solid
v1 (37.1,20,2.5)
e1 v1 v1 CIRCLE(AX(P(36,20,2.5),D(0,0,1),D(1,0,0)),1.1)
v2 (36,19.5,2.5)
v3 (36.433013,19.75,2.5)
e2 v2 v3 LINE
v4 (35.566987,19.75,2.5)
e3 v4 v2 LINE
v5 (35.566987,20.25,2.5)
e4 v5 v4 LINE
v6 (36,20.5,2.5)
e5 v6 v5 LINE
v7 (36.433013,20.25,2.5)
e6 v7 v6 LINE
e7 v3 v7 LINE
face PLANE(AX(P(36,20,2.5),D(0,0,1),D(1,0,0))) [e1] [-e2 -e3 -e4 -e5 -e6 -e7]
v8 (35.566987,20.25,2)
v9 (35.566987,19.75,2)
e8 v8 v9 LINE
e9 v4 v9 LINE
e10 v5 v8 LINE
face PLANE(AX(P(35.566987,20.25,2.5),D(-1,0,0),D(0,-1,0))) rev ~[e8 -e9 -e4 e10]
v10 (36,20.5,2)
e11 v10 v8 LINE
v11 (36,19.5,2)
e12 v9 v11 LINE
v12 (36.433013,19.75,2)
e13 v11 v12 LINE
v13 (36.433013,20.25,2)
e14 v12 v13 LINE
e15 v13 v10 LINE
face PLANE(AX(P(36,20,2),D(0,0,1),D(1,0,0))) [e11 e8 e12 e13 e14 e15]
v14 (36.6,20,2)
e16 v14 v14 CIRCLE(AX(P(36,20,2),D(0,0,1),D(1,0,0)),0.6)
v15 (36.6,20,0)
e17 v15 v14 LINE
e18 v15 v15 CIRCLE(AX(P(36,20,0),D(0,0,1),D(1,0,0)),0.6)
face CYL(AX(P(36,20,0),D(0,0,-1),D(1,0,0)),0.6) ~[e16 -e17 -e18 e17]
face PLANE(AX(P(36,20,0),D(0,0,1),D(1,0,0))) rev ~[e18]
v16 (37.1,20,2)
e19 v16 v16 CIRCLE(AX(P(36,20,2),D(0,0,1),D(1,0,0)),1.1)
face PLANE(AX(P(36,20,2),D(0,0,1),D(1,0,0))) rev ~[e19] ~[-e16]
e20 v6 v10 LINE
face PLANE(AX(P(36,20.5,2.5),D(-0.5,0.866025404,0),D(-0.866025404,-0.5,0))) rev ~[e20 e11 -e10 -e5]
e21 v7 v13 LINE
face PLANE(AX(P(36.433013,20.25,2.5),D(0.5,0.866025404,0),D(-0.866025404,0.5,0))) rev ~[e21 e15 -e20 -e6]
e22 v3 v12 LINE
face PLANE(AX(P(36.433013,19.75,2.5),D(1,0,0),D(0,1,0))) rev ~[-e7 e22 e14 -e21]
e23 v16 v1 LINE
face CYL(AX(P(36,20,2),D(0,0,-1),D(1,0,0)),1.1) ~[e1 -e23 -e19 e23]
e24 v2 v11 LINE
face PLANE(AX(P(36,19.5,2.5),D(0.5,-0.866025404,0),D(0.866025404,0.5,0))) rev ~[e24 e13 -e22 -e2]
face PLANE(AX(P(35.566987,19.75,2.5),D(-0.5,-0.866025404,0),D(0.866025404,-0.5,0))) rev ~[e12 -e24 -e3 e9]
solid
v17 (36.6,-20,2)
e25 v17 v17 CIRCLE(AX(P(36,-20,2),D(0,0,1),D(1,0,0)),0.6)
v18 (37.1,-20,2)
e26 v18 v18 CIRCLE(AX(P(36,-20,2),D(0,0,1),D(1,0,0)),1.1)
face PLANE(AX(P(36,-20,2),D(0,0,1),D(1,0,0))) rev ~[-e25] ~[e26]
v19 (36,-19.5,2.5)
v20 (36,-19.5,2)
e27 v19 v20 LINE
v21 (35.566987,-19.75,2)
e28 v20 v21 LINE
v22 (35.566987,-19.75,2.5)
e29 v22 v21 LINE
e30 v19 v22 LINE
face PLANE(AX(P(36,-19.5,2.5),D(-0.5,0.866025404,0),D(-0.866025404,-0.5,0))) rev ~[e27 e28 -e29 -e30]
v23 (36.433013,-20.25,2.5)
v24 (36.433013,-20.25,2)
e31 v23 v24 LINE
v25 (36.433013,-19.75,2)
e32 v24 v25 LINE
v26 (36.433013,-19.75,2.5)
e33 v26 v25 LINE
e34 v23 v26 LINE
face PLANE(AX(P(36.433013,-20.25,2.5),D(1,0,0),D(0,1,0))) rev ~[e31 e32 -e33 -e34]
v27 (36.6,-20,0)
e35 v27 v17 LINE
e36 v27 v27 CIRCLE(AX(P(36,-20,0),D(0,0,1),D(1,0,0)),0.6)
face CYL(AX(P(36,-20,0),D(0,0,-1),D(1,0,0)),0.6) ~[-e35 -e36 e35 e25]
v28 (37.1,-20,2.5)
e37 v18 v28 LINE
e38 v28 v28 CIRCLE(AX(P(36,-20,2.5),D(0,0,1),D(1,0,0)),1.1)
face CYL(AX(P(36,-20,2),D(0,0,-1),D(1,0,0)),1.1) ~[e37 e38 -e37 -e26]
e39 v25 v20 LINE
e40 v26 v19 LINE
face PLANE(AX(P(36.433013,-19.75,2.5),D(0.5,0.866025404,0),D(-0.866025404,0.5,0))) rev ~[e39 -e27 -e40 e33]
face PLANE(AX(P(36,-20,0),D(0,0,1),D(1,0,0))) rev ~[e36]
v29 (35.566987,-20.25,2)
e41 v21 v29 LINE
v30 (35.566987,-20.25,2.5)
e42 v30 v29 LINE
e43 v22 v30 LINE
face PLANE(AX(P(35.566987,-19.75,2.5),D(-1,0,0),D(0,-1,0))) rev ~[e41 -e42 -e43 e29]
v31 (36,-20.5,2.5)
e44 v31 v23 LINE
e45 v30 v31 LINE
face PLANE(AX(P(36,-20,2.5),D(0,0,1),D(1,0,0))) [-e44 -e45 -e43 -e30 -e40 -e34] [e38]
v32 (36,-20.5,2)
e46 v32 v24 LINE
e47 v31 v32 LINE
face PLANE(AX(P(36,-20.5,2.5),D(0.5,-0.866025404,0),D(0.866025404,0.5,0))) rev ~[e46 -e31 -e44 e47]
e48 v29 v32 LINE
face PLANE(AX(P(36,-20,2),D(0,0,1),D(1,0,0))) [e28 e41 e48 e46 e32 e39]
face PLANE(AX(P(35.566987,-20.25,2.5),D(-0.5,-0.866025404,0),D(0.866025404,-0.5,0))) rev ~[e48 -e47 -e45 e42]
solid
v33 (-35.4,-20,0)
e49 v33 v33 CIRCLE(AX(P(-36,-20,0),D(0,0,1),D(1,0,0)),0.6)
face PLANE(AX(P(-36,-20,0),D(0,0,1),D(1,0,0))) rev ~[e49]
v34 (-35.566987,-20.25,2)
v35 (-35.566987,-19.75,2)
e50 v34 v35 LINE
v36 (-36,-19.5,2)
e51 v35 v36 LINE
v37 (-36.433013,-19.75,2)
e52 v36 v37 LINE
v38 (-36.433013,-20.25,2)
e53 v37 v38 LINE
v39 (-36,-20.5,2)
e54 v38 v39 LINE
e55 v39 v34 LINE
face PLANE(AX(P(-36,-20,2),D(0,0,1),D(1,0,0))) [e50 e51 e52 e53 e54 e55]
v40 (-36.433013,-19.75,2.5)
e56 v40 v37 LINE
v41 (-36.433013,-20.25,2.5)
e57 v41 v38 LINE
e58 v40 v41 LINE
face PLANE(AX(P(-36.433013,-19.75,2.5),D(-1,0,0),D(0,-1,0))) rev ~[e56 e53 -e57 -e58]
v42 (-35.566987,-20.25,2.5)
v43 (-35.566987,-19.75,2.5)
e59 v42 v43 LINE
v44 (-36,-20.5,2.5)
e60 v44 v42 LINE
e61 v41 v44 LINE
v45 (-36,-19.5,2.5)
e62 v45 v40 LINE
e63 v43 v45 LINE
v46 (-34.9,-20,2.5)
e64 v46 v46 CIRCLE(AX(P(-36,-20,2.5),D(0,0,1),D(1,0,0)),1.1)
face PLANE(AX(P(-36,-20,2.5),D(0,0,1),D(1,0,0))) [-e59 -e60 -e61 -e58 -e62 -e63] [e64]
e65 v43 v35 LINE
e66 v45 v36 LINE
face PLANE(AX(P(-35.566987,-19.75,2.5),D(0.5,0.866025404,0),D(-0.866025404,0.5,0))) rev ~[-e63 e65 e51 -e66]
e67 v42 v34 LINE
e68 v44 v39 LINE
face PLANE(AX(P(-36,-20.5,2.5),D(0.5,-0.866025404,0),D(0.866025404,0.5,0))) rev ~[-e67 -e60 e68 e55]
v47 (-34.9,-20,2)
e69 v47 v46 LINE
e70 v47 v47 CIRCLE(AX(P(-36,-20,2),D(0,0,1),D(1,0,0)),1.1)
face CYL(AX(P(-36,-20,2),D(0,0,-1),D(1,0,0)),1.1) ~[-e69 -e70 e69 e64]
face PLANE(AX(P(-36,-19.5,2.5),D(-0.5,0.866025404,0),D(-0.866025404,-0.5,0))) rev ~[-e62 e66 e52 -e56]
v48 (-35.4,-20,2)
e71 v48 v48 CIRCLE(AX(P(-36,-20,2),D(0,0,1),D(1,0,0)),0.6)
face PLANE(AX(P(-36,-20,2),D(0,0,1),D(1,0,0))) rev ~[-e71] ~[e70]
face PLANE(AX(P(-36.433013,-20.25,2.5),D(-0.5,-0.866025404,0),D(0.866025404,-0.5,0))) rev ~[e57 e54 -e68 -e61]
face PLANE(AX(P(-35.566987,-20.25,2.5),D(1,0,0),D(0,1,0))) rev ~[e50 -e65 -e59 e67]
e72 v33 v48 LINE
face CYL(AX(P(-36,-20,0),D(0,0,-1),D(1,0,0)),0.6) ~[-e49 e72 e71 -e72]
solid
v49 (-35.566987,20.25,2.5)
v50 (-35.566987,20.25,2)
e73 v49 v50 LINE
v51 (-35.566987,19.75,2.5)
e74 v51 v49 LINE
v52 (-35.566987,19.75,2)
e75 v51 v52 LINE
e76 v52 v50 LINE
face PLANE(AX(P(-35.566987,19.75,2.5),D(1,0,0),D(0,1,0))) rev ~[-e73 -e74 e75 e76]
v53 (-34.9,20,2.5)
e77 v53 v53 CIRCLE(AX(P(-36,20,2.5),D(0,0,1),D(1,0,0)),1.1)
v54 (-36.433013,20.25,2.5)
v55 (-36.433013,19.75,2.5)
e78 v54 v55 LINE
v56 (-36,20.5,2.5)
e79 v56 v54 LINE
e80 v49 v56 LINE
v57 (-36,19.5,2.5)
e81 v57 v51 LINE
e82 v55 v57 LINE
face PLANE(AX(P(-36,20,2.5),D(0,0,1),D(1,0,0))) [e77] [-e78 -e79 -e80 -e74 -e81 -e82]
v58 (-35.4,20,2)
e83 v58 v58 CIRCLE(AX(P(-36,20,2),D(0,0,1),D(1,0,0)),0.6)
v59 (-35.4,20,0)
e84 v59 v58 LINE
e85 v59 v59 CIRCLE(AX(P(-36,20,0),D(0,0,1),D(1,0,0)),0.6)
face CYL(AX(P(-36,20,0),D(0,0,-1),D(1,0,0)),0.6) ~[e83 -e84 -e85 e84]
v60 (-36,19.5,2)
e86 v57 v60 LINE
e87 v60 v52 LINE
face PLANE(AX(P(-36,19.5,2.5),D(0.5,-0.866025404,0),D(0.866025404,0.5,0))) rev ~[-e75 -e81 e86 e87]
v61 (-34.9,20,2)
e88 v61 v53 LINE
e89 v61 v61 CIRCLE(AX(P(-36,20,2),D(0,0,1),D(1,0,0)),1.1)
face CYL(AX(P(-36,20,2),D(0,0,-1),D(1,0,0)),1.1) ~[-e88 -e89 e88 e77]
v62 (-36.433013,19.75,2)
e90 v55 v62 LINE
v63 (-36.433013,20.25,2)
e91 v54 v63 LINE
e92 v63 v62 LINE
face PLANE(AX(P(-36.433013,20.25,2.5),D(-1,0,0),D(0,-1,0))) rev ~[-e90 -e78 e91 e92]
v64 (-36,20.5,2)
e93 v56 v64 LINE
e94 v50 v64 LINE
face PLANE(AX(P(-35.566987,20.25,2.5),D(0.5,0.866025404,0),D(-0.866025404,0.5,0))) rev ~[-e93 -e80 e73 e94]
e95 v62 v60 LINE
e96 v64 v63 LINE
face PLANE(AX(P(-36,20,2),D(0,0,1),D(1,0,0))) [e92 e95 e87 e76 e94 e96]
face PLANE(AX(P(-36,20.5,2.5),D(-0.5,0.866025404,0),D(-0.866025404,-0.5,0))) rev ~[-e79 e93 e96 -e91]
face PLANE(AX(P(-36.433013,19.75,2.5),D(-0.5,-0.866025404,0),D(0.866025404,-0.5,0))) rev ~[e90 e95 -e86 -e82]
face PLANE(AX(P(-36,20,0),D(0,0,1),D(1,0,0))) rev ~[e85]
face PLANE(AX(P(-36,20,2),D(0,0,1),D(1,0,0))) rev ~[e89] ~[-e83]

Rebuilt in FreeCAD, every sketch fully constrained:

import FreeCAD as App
import Part
import Sketcher
Q = App.Units.Quantity


def add_polygon(sketch, points):
    """Adds a closed chain of lines whose ends are joined by coincident constraints."""
    first, n = sketch.GeometryCount, len(points)
    for a, b in zip(points, points[1:] + points[:1]):
        sketch.addGeometry(Part.LineSegment(App.Vector(*a, 0), App.Vector(*b, 0)), False)
    for i in range(n):
        sketch.addConstraint(Sketcher.Constraint("Coincident", first + i, 2, first + (i + 1) % n, 1))

doc = App.newDocument("Part")
body = doc.addObject("PartDesign::Body", "Body")

# Sketch on XY plane
sketch1 = doc.addObject("Sketcher::SketchObject", "Sketch")
body.addObject(sketch1)
sketch1.AttachmentSupport = (doc.XY_Plane, [""])
sketch1.MapMode = "FlatFace"
sketch1.addGeometry(Part.Circle(App.Vector(-36, 20, 0), App.Vector(0, 0, 1), 0.6), False)
sketch1.addConstraint(Sketcher.Constraint("Diameter", 0, 1.2))
sketch1.addConstraint(Sketcher.Constraint("DistanceX", 0, 3, -1, 1, 36.0))
sketch1.addConstraint(Sketcher.Constraint("DistanceY", -1, 1, 0, 3, 20.0))
pad1 = doc.addObject("PartDesign::Pad", "Pad")
body.addObject(pad1)
pad1.Profile = sketch1
pad1.Length = 2
body2 = doc.addObject("PartDesign::Body", "Body001")

# Sketch on XY plane
sketch2 = doc.addObject("Sketcher::SketchObject", "Sketch001")
body2.addObject(sketch2)
sketch2.AttachmentSupport = (doc.getObject("XY_Plane001"), [""])
sketch2.MapMode = "FlatFace"
sketch2.addGeometry(Part.Circle(App.Vector(36, 20, 0), App.Vector(0, 0, 1), 0.6), False)
sketch2.addConstraint(Sketcher.Constraint("Diameter", 0, 1.2))
sketch2.addConstraint(Sketcher.Constraint("DistanceX", -1, 1, 0, 3, 36.0))
sketch2.addConstraint(Sketcher.Constraint("DistanceY", -1, 1, 0, 3, 20.0))
pad2 = doc.addObject("PartDesign::Pad", "Pad001")
body2.addObject(pad2)
pad2.Profile = sketch2
pad2.Length = 2
body3 = doc.addObject("PartDesign::Body", "Body002")

# Sketch on XY plane
sketch3 = doc.addObject("Sketcher::SketchObject", "Sketch002")
body3.addObject(sketch3)
sketch3.AttachmentSupport = (doc.getObject("XY_Plane002"), [""])
sketch3.MapMode = "FlatFace"
sketch3.addGeometry(Part.Circle(App.Vector(36, -20, 0), App.Vector(0, 0, 1), 0.6), False)
sketch3.addConstraint(Sketcher.Constraint("Diameter", 0, 1.2))
sketch3.addConstraint(Sketcher.Constraint("DistanceX", -1, 1, 0, 3, 36.0))
sketch3.addConstraint(Sketcher.Constraint("DistanceY", 0, 3, -1, 1, 20.0))
pad3 = doc.addObject("PartDesign::Pad", "Pad002")
body3.addObject(pad3)
pad3.Profile = sketch3
pad3.Length = 2
body4 = doc.addObject("PartDesign::Body", "Body003")

# Sketch on XY plane
sketch4 = doc.addObject("Sketcher::SketchObject", "Sketch003")
body4.addObject(sketch4)
sketch4.AttachmentSupport = (doc.getObject("XY_Plane003"), [""])
sketch4.MapMode = "FlatFace"
sketch4.addGeometry(Part.Circle(App.Vector(-36, -20, 0), App.Vector(0, 0, 1), 0.6), False)
sketch4.addConstraint(Sketcher.Constraint("Diameter", 0, 1.2))
sketch4.addConstraint(Sketcher.Constraint("DistanceX", 0, 3, -1, 1, 36.0))
sketch4.addConstraint(Sketcher.Constraint("DistanceY", 0, 3, -1, 1, 20.0))
pad4 = doc.addObject("PartDesign::Pad", "Pad003")
body4.addObject(pad4)
pad4.Profile = sketch4
pad4.Length = 2
body.AllowCompound = True
doc.recompute()

boolean = doc.addObject("PartDesign::Boolean", "Boolean")
body.addObject(boolean)
boolean.Type = "Fuse"
boolean.addObjects([body2])
doc.recompute()

boolean2 = doc.addObject("PartDesign::Boolean", "Boolean001")
body.addObject(boolean2)
boolean2.Type = "Fuse"
boolean2.addObjects([body3])
doc.recompute()

boolean3 = doc.addObject("PartDesign::Boolean", "Boolean002")
body.addObject(boolean3)
boolean3.Type = "Fuse"
boolean3.addObjects([body4])

# Sketch on XY plane
sketch5 = doc.addObject("Sketcher::SketchObject", "Sketch004")
body.addObject(sketch5)
sketch5.AttachmentSupport = (doc.XY_Plane, [""])
sketch5.MapMode = "FlatFace"
sketch5.AttachmentOffset = App.Placement(App.Vector(0, 0, 2), App.Rotation())
sketch5.addGeometry(Part.Circle(App.Vector(-36, 20, 0), App.Vector(0, 0, 1), 1.1), False)
sketch5.addGeometry(Part.Circle(App.Vector(36, 20, 0), App.Vector(0, 0, 1), 1.1), False)
sketch5.addGeometry(Part.Circle(App.Vector(36, -20, 0), App.Vector(0, 0, 1), 1.1), False)
sketch5.addGeometry(Part.Circle(App.Vector(-36, -20, 0), App.Vector(0, 0, 1), 1.1), False)
sketch5.addConstraint(Sketcher.Constraint("Equal", 0, 1))
sketch5.addConstraint(Sketcher.Constraint("Equal", 1, 2))
sketch5.addConstraint(Sketcher.Constraint("Equal", 2, 3))
sketch5.addConstraint(Sketcher.Constraint("Symmetric", 0, 3, 2, 3, -1, 1))
sketch5.addConstraint(Sketcher.Constraint("Symmetric", 1, 3, 3, 3, -1, 1))
sketch5.addConstraint(Sketcher.Constraint("Symmetric", 0, 3, 1, 3, -2))
sketch5.addConstraint(Sketcher.Constraint("Diameter", 0, 2.2))
sketch5.addConstraint(Sketcher.Constraint("DistanceX", 0, 3, -1, 1, 36.0))
sketch5.addConstraint(Sketcher.Constraint("DistanceY", -1, 1, 0, 3, 20.0))
pad5 = doc.addObject("PartDesign::Pad", "Pad004")
body.addObject(pad5)
pad5.Profile = sketch5
pad5.Length = 0.5

# Sketch on XY plane
sketch6 = doc.addObject("Sketcher::SketchObject", "Sketch005")
body.addObject(sketch6)
sketch6.AttachmentSupport = (doc.XY_Plane, [""])
sketch6.MapMode = "FlatFace"
sketch6.AttachmentOffset = App.Placement(App.Vector(0, 0, 2.5), App.Rotation())
add_polygon(sketch6, [(36.4, -20.2), (36.4, -19.8), (36, -19.5), (35.6, -19.8), (35.6, -20.2), (36, -20.5)])  # lines 0-5
add_polygon(sketch6, [(36.4, 19.8), (36.4, 20.2), (36, 20.5), (35.6, 20.2), (35.6, 19.8), (36, 19.5)])  # lines 6-11
add_polygon(sketch6, [(-35.6, 19.8), (-35.6, 20.2), (-36, 20.5), (-36.4, 20.2), (-36.4, 19.8), (-36, 19.5)])  # lines 12-17
add_polygon(sketch6, [(-35.6, -20.2), (-35.6, -19.8), (-36, -19.5), (-36.4, -19.8), (-36.4, -20.2), (-36, -20.5)])  # lines 18-23
sketch6.addConstraint(Sketcher.Constraint("Vertical", 0))
sketch6.addConstraint(Sketcher.Constraint("Vertical", 3))
sketch6.addConstraint(Sketcher.Constraint("Vertical", 6))
sketch6.addConstraint(Sketcher.Constraint("Vertical", 9))
sketch6.addConstraint(Sketcher.Constraint("Vertical", 12))
sketch6.addConstraint(Sketcher.Constraint("Vertical", 15))
sketch6.addConstraint(Sketcher.Constraint("Vertical", 18))
sketch6.addConstraint(Sketcher.Constraint("Vertical", 21))
sketch6.addConstraint(Sketcher.Constraint("Symmetric", 3, 2, 12, 2, -1, 1))
sketch6.addConstraint(Sketcher.Constraint("Symmetric", 4, 2, 13, 2, -1, 1))
sketch6.addConstraint(Sketcher.Constraint("Symmetric", 5, 2, 14, 2, -1, 1))
sketch6.addConstraint(Sketcher.Constraint("Symmetric", 1, 2, 16, 2, -1, 1))
sketch6.addConstraint(Sketcher.Constraint("Symmetric", 9, 2, 18, 2, -1, 1))
sketch6.addConstraint(Sketcher.Constraint("Symmetric", 10, 2, 19, 2, -1, 1))
sketch6.addConstraint(Sketcher.Constraint("Symmetric", 11, 2, 20, 2, -1, 1))
sketch6.addConstraint(Sketcher.Constraint("Symmetric", 7, 2, 22, 2, -1, 1))
sketch6.addConstraint(Sketcher.Constraint("Symmetric", 8, 2, 12, 2, -2))
sketch6.addConstraint(Sketcher.Constraint("Symmetric", 7, 2, 13, 2, -2))
sketch6.addConstraint(Sketcher.Constraint("Symmetric", 6, 2, 14, 2, -2))
sketch6.addConstraint(Sketcher.Constraint("Symmetric", 10, 2, 16, 2, -2))
sketch6.addConstraint(Sketcher.Constraint("Parallel", 1, 4))
sketch6.addConstraint(Sketcher.Constraint("Parallel", 2, 5))
sketch6.addConstraint(Sketcher.Constraint("Parallel", 4, 7))
sketch6.addConstraint(Sketcher.Constraint("Parallel", 7, 10))
sketch6.addConstraint(Sketcher.Constraint("Parallel", 8, 11))
sketch6.addConstraint(Sketcher.Constraint("Parallel", 13, 16))
sketch6.addConstraint(Sketcher.Constraint("Parallel", 14, 17))
sketch6.addConstraint(Sketcher.Constraint("Parallel", 19, 22))
sketch6.addConstraint(Sketcher.Constraint("Parallel", 20, 23))
sketch6.addConstraint(Sketcher.Constraint("Horizontal", 0, 2, 2, 2))
sketch6.addConstraint(Sketcher.Constraint("Horizontal", 3, 2, 5, 2))
sketch6.addConstraint(Sketcher.Constraint("Angle", 1, Q("150 deg")))
sketch6.addConstraint(Sketcher.Constraint("DistanceY", 0, 1, 0, 2, 0.5))
sketch6.addConstraint(Sketcher.Constraint("DistanceX", -1, 1, 1, 2, 36.0))
sketch6.addConstraint(Sketcher.Constraint("DistanceY", 4, 2, 1, 2, 1.0))
sketch6.addConstraint(Sketcher.Constraint("DistanceY", 0, 2, 6, 2, 40.0))
pocket1 = doc.addObject("PartDesign::Pocket", "Pocket")
body.addObject(pocket1)
pocket1.Profile = sketch6
pocket1.Length = 0.5

doc.recompute()
